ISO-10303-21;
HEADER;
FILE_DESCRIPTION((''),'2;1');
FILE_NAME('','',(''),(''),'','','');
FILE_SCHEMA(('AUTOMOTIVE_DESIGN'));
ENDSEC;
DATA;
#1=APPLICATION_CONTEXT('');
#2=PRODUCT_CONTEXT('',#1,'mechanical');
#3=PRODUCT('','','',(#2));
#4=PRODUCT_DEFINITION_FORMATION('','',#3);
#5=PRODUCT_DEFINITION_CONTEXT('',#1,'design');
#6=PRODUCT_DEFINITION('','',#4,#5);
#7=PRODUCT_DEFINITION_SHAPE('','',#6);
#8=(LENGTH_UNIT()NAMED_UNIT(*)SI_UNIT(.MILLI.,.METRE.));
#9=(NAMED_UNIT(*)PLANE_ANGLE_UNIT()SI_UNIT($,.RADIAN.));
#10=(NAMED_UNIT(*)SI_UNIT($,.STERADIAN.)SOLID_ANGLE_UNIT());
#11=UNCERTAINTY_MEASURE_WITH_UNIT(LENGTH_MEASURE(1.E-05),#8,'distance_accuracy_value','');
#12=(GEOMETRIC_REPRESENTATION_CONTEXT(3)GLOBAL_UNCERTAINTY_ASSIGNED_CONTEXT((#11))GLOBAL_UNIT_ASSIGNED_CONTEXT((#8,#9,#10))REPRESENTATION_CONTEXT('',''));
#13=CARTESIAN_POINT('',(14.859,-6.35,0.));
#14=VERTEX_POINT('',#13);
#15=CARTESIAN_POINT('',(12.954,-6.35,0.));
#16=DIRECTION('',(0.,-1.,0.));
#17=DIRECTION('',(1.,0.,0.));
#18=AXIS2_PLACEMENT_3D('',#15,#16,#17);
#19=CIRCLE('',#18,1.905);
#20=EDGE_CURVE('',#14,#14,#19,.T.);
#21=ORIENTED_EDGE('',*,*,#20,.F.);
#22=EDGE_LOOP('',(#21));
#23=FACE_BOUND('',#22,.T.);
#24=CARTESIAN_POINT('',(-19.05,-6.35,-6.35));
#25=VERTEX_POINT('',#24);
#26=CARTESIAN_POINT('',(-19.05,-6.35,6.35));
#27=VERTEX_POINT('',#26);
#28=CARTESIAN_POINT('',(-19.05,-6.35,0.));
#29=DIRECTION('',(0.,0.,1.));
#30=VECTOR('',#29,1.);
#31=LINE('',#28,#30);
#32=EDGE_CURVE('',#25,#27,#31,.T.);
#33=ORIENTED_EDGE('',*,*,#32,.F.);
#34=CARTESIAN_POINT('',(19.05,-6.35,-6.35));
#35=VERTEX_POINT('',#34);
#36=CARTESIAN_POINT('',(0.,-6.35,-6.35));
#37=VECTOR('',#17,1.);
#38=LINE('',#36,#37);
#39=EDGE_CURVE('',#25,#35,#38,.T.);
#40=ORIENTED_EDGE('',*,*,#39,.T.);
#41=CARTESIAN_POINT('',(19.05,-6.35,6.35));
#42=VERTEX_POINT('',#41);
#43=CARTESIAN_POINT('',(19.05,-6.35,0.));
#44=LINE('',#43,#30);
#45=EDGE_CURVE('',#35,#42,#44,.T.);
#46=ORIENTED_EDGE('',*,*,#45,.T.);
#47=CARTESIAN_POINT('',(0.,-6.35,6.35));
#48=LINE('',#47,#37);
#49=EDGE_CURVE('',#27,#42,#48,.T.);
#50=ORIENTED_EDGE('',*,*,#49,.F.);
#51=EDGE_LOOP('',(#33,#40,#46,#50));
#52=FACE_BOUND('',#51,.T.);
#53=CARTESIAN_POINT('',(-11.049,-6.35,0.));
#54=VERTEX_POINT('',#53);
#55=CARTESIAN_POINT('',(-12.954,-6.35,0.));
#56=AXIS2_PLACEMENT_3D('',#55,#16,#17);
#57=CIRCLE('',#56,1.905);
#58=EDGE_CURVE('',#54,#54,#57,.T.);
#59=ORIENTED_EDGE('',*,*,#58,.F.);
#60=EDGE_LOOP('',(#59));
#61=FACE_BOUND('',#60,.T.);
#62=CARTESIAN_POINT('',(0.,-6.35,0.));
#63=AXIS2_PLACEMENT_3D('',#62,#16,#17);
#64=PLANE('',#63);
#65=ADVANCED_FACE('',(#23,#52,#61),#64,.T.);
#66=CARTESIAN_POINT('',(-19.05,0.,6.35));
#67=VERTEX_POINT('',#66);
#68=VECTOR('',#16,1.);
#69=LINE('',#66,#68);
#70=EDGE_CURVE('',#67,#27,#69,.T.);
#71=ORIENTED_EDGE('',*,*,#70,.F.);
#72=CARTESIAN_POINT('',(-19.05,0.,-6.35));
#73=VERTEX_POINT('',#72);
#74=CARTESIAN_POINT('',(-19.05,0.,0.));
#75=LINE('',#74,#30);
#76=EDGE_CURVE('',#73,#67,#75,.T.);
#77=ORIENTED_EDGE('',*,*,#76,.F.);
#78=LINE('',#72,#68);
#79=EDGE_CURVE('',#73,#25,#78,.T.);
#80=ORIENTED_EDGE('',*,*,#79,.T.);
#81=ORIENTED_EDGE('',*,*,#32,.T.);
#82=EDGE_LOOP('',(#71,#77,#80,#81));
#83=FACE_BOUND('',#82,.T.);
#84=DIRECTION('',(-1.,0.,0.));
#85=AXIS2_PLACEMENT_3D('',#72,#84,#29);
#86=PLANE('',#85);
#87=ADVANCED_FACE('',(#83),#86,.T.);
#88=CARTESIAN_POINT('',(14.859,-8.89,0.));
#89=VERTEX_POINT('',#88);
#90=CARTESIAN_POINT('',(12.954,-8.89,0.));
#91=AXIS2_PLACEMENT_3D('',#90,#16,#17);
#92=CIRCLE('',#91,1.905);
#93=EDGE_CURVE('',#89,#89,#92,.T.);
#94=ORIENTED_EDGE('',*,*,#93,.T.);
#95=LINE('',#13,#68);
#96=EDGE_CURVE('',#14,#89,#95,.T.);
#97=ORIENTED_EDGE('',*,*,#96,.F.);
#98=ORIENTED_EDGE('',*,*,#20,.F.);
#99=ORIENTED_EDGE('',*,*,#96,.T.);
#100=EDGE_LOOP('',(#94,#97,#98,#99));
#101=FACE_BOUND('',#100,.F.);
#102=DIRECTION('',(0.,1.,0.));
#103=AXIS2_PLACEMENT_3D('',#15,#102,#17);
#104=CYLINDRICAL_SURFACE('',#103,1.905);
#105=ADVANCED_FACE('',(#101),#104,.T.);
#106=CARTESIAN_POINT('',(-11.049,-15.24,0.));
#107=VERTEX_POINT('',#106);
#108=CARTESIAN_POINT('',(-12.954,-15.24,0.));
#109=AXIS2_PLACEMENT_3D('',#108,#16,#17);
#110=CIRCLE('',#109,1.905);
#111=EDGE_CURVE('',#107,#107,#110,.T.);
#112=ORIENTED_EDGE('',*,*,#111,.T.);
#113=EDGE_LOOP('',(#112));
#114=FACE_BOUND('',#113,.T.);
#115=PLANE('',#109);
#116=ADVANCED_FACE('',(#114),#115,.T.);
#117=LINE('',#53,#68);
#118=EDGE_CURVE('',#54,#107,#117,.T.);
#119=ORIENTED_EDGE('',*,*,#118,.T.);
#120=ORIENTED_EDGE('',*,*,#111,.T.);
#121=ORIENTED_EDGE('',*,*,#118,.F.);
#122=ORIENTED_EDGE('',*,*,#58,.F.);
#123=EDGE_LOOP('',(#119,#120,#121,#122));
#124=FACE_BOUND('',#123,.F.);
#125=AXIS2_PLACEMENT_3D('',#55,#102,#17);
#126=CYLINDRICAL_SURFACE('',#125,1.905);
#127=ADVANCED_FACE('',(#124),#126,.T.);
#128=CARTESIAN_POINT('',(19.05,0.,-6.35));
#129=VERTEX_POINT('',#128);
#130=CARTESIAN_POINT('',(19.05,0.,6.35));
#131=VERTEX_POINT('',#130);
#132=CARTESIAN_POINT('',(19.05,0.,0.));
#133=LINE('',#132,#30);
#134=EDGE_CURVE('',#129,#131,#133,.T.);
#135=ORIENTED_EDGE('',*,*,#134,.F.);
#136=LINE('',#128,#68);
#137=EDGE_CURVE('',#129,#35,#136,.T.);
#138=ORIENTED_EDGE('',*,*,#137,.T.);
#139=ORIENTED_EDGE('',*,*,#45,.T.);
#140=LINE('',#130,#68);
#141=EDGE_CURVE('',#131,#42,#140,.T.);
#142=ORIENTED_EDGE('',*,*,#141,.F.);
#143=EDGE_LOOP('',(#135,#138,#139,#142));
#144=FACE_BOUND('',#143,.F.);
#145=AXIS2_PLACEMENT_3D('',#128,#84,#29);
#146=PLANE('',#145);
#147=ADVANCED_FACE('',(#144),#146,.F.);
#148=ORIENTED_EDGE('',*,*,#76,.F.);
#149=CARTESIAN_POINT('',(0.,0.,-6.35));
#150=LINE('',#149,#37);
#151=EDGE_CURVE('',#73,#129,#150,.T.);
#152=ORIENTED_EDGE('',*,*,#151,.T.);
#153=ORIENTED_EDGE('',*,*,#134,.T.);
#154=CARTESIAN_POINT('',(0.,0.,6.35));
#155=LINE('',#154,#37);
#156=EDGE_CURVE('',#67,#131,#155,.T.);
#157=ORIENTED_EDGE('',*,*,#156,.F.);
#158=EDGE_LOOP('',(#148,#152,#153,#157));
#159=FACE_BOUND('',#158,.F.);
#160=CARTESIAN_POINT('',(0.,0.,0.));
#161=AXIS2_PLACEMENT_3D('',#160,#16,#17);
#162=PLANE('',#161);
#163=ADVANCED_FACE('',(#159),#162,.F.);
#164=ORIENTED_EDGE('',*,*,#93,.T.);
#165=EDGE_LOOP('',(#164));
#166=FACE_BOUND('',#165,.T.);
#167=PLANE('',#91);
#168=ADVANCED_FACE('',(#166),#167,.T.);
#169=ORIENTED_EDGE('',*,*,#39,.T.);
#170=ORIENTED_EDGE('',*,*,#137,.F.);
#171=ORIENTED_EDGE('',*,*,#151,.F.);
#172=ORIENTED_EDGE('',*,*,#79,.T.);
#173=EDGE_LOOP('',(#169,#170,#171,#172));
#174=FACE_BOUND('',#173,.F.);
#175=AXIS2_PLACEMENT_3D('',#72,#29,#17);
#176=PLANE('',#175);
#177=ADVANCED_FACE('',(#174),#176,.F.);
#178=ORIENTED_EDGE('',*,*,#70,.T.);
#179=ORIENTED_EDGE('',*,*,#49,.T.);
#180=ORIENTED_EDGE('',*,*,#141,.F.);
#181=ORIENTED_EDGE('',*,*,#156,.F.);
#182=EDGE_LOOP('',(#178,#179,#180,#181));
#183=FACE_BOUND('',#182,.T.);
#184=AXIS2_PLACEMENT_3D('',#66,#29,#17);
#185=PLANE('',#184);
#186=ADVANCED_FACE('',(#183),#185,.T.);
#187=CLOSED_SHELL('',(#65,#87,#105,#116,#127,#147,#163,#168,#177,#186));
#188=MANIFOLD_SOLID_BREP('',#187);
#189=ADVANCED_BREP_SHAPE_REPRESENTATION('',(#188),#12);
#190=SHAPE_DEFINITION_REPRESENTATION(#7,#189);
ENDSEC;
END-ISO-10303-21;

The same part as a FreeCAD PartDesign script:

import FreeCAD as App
import Part
import Sketcher
Q = App.Units.Quantity


def add_polygon(sketch, points):
    """Adds a closed chain of lines whose ends are joined by coincident constraints."""
    first, n = sketch.GeometryCount, len(points)
    for a, b in zip(points, points[1:] + points[:1]):
        sketch.addGeometry(Part.LineSegment(App.Vector(*a, 0), App.Vector(*b, 0)), False)
    for i in range(n):
        sketch.addConstraint(Sketcher.Constraint("Coincident", first + i, 2, first + (i + 1) % n, 1))

doc = App.newDocument("Part")
params = doc.addObject("Spreadsheet::Sheet", "Params")
for row, (alias, value) in enumerate([
    ("sketch1_width", "1.5 in"),
    ("sketch1_height", "0.5 in"),
    ("pad1_length", "0.25 in"),
    ("sketch2_diameter", "0.15 in"),
    ("pad2_length", "0.35 in"),
    ("sketch3_diameter", "0.15 in"),
    ("pad3_length", "0.1 in"),
], start=1):
    params.set(f"A{row}", alias)
    params.set(f"B{row}", "=" + value)
    params.setAlias(f"B{row}", alias)

body = doc.addObject("PartDesign::Body", "Body")

# Sketch on XZ plane
sketch1 = doc.addObject("Sketcher::SketchObject", "Sketch")
body.addObject(sketch1)
sketch1.AttachmentSupport = (doc.XZ_Plane, [""])
sketch1.MapMode = "FlatFace"
add_polygon(sketch1, [(-19, 6), (-19, -6), (19, -6), (19, 6)])  # lines 0-3
sketch1.addConstraint(Sketcher.Constraint("Vertical", 0))
sketch1.addConstraint(Sketcher.Constraint("Horizontal", 1))
sketch1.addConstraint(Sketcher.Constraint("Vertical", 2))
sketch1.addConstraint(Sketcher.Constraint("Horizontal", 3))
sketch1.addConstraint(Sketcher.Constraint("Symmetric", 0, 2, 2, 2, -1, 1))
sketch1.addConstraint(Sketcher.Constraint("DistanceX", 1, 1, 1, 2, Q("1.5 in")))
sketch1.addConstraint(Sketcher.Constraint("DistanceY", 0, 2, 0, 1, Q("0.5 in")))
sketch1.setExpression("Constraints[9]", "Params.sketch1_width")
sketch1.setExpression("Constraints[10]", "Params.sketch1_height")
pad1 = doc.addObject("PartDesign::Pad", "Pad")
body.addObject(pad1)
pad1.Profile = sketch1
pad1.setExpression("Length", "Params.pad1_length")

# Sketch on XZ plane
sketch2 = doc.addObject("Sketcher::SketchObject", "Sketch001")
body.addObject(sketch2)
sketch2.AttachmentSupport = (doc.XZ_Plane, [""])
sketch2.MapMode = "FlatFace"
sketch2.AttachmentOffset = App.Placement(App.Vector(0, 0, 0.25 * 25.4), App.Rotation())
sketch2.addGeometry(Part.Circle(App.Vector(-13, 0, 0), App.Vector(0, 0, 1), 1.9), False)
sketch2.addConstraint(Sketcher.Constraint("PointOnObject", 0, 3, -1))
sketch2.addConstraint(Sketcher.Constraint("Diameter", 0, Q("0.15 in")))
sketch2.addConstraint(Sketcher.Constraint("DistanceX", 0, 3, -1, 1, Q("0.51 in")))
sketch2.setExpression("Constraints[1]", "Params.sketch2_diameter")
pad2 = doc.addObject("PartDesign::Pad", "Pad001")
body.addObject(pad2)
pad2.Profile = sketch2
pad2.setExpression("Length", "Params.pad2_length")

# Sketch on XZ plane
sketch3 = doc.addObject("Sketcher::SketchObject", "Sketch002")
body.addObject(sketch3)
sketch3.AttachmentSupport = (doc.XZ_Plane, [""])
sketch3.MapMode = "FlatFace"
sketch3.AttachmentOffset = App.Placement(App.Vector(0, 0, 0.25 * 25.4), App.Rotation())
sketch3.addGeometry(Part.Circle(App.Vector(13, 0, 0), App.Vector(0, 0, 1), 1.9), False)
sketch3.addConstraint(Sketcher.Constraint("PointOnObject", 0, 3, -1))
sketch3.addConstraint(Sketcher.Constraint("Diameter", 0, Q("0.15 in")))
sketch3.addConstraint(Sketcher.Constraint("DistanceX", -1, 1, 0, 3, Q("0.51 in")))
sketch3.setExpression("Constraints[1]", "Params.sketch3_diameter")
pad3 = doc.addObject("PartDesign::Pad", "Pad002")
body.addObject(pad3)
pad3.Profile = sketch3
pad3.setExpression("Length", "Params.pad3_length")

doc.recompute()
